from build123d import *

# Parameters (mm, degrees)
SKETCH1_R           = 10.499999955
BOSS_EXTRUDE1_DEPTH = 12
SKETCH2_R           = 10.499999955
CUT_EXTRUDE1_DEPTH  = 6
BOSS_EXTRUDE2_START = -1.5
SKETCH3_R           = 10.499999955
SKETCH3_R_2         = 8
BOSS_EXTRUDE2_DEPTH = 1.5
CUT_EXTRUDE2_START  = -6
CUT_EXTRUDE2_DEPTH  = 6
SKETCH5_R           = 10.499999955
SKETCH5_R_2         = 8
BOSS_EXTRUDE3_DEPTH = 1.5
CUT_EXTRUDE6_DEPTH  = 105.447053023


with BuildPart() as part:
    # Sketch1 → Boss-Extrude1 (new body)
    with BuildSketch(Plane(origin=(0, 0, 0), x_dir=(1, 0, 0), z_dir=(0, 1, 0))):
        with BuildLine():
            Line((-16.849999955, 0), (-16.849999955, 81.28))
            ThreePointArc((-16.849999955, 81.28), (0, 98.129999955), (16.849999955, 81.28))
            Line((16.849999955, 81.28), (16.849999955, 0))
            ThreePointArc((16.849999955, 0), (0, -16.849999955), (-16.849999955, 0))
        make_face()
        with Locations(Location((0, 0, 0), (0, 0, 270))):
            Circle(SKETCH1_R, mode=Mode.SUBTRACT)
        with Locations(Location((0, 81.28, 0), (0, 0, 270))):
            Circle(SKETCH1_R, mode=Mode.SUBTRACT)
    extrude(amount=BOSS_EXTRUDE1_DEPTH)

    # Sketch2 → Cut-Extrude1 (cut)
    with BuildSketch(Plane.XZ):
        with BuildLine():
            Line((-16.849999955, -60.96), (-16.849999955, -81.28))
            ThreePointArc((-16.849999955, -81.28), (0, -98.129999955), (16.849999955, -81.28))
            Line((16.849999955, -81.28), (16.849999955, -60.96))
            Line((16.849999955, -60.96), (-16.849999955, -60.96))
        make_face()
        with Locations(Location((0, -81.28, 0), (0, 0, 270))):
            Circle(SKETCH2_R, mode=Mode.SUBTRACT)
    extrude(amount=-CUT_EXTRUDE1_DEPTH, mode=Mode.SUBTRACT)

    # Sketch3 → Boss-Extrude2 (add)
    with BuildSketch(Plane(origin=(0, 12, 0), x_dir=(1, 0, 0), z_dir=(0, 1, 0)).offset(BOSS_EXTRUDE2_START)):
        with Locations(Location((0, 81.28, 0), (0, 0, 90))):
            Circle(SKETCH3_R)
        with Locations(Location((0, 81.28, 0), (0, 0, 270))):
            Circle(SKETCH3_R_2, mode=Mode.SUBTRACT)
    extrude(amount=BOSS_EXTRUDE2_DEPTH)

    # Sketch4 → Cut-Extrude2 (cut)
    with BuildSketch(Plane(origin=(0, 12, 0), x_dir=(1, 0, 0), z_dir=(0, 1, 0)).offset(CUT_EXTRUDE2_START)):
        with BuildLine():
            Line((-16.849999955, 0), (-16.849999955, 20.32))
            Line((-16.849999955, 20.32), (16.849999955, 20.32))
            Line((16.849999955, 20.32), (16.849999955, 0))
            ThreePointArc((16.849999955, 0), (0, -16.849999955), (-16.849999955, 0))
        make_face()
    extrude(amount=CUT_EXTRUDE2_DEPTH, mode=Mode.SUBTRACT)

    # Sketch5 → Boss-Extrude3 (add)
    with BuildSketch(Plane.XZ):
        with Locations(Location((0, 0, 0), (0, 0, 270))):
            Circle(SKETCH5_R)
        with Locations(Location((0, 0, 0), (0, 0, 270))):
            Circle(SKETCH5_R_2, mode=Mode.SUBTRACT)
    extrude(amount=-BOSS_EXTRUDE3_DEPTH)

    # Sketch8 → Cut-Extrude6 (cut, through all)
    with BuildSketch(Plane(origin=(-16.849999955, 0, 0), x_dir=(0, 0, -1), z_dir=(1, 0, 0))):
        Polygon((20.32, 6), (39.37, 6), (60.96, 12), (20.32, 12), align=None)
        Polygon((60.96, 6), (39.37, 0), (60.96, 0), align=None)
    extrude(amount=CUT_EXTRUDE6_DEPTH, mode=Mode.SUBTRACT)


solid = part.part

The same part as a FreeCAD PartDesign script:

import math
import FreeCAD as App
import Part
import Sketcher
Q = App.Units.Quantity

doc = App.newDocument("Part")
body = doc.addObject("PartDesign::Body", "Body")

sketch1 = body.newObject("Sketcher::SketchObject", "Sketch")
sketch1.AttachmentSupport = (doc.getObject("XZ_Plane"), [""])
sketch1.MapMode = "FlatFace"
sketch1.addGeometry([
    Part.LineSegment(App.Vector(-17, -81, 0), App.Vector(-17, 0, 0)),
    Part.ArcOfCircle(Part.Circle(App.Vector(0, 0, 0), App.Vector(0, 0, 1), 17), math.radians(0), math.radians(180)),
    Part.LineSegment(App.Vector(17, 0, 0), App.Vector(17, -81, 0)),
    Part.ArcOfCircle(Part.Circle(App.Vector(0, -81, 0), App.Vector(0, 0, 1), 17), math.radians(180), math.radians(360)),
    Part.Circle(App.Vector(0, 0, 0), App.Vector(0, 0, 1), 10),
    Part.Circle(App.Vector(0, -81, 0), App.Vector(0, 0, 1), 10),
], False)
sketch1.addConstraint([
    Sketcher.Constraint("Tangent", 0, 2, 1, 2),
    Sketcher.Constraint("Tangent", 1, 1, 2, 1),
    Sketcher.Constraint("Tangent", 2, 2, 3, 2),
    Sketcher.Constraint("Tangent", 3, 1, 0, 1),
    Sketcher.Constraint("Vertical", 0),
    Sketcher.Constraint("Vertical", 2),
    Sketcher.Constraint("Coincident", 1, 3, -1, 1),
    Sketcher.Constraint("Coincident", 4, 3, -1, 1),
    Sketcher.Constraint("Coincident", 5, 3, 3, 3),
    Sketcher.Constraint("Equal", 4, 5),
    Sketcher.Constraint("Diameter", 4, Q("21 mm")),
    Sketcher.Constraint("Radius", 1, Q("16.85 mm")),
    Sketcher.Constraint("DistanceY", 0, 1, 0, 2, Q("81.28 mm")),
])
pad1 = body.newObject("PartDesign::Pad", "Pad")
pad1.Profile = sketch1
pad1.Length = 12
pad1.Reversed = True

sketch2 = body.newObject("Sketcher::SketchObject", "Sketch001")
sketch2.AttachmentSupport = (doc.getObject("XZ_Plane"), [""])
sketch2.MapMode = "FlatFace"
sketch2.addGeometry([
    Part.LineSegment(App.Vector(-17, -61, 0), App.Vector(-17, -81, 0)),
    Part.ArcOfCircle(Part.Circle(App.Vector(0, -81, 0), App.Vector(0, 0, 1), 17), math.radians(180), math.radians(360)),
    Part.LineSegment(App.Vector(17, -81, 0), App.Vector(17, -61, 0)),
    Part.LineSegment(App.Vector(17, -61, 0), App.Vector(-17, -61, 0)),
    Part.Circle(App.Vector(0, -81, 0), App.Vector(0, 0, 1), 10),
], False)
sketch2.addConstraint([
    Sketcher.Constraint("Tangent", 0, 2, 1, 1),
    Sketcher.Constraint("Tangent", 1, 2, 2, 1),
    Sketcher.Constraint("Coincident", 2, 2, 3, 1),
    Sketcher.Constraint("Coincident", 3, 2, 0, 1),
    Sketcher.Constraint("Vertical", 0),
    Sketcher.Constraint("Vertical", 2),
    Sketcher.Constraint("Horizontal", 3),
    Sketcher.Constraint("Coincident", 4, 3, 1, 3),
    Sketcher.Constraint("PointOnObject", 1, 3, -2),
    Sketcher.Constraint("Diameter", 4, Q("21 mm")),
    Sketcher.Constraint("Radius", 1, Q("16.85 mm")),
    Sketcher.Constraint("DistanceY", 0, 2, 0, 1, Q("20.32 mm")),
    Sketcher.Constraint("DistanceY", 1, 3, -1, 1, Q("81.28 mm")),
])
pocket1 = body.newObject("PartDesign::Pocket", "Pocket")
pocket1.Profile = sketch2
pocket1.Length = 6

sketch3 = body.newObject("Sketcher::SketchObject", "Sketch002")
sketch3.AttachmentSupport = (doc.getObject("XZ_Plane"), [""])
sketch3.MapMode = "FlatFace"
sketch3.AttachmentOffset = App.Placement(App.Vector(0, 0, -10.5), App.Rotation())
sketch3.addGeometry([
    Part.Circle(App.Vector(0, -81, 0), App.Vector(0, 0, 1), 10),
    Part.Circle(App.Vector(0, -81, 0), App.Vector(0, 0, 1), 8),
], False)
sketch3.addConstraint([
    Sketcher.Constraint("Coincident", 1, 3, 0, 3),
    Sketcher.Constraint("PointOnObject", 0, 3, -2),
    Sketcher.Constraint("Diameter", 0, Q("21 mm")),
    Sketcher.Constraint("Diameter", 1, Q("16 mm")),
    Sketcher.Constraint("DistanceY", 0, 3, -1, 1, Q("81.28 mm")),
])
pad2 = body.newObject("PartDesign::Pad", "Pad001")
pad2.Profile = sketch3
pad2.Length = 1.5
pad2.Reversed = True

sketch4 = body.newObject("Sketcher::SketchObject", "Sketch003")
sketch4.AttachmentSupport = (doc.getObject("XZ_Plane"), [""])
sketch4.MapMode = "FlatFace"
sketch4.AttachmentOffset = App.Placement(App.Vector(0, 0, -6), App.Rotation())
sketch4.addGeometry([
    Part.LineSegment(App.Vector(-17, -20, 0), App.Vector(-17, 0, 0)),
    Part.ArcOfCircle(Part.Circle(App.Vector(0, 0, 0), App.Vector(0, 0, 1), 17), math.radians(0), math.radians(180)),
    Part.LineSegment(App.Vector(17, 0, 0), App.Vector(17, -20, 0)),
    Part.LineSegment(App.Vector(17, -20, 0), App.Vector(-17, -20, 0)),
], False)
sketch4.addConstraint([
    Sketcher.Constraint("Tangent", 0, 2, 1, 2),
    Sketcher.Constraint("Tangent", 1, 1, 2, 1),
    Sketcher.Constraint("Coincident", 2, 2, 3, 1),
    Sketcher.Constraint("Coincident", 3, 2, 0, 1),
    Sketcher.Constraint("Vertical", 0),
    Sketcher.Constraint("Vertical", 2),
    Sketcher.Constraint("Horizontal", 3),
    Sketcher.Constraint("Coincident", 1, 3, -1, 1),
    Sketcher.Constraint("Radius", 1, Q("16.85 mm")),
    Sketcher.Constraint("DistanceY", 0, 1, 0, 2, Q("20.32 mm")),
])
pocket2 = body.newObject("PartDesign::Pocket", "Pocket001")
pocket2.Profile = sketch4
pocket2.Length = 6

sketch5 = body.newObject("Sketcher::SketchObject", "Sketch004")
sketch5.AttachmentSupport = (doc.getObject("XZ_Plane"), [""])
sketch5.MapMode = "FlatFace"
sketch5.addGeometry([
    Part.Circle(App.Vector(0, 0, 0), App.Vector(0, 0, 1), 10),
    Part.Circle(App.Vector(0, 0, 0), App.Vector(0, 0, 1), 8),
], False)
sketch5.addConstraint([
    Sketcher.Constraint("Coincident", 0, 3, -1, 1),
    Sketcher.Constraint("Coincident", 1, 3, -1, 1),
    Sketcher.Constraint("Diameter", 0, Q("21 mm")),
    Sketcher.Constraint("Diameter", 1, Q("16 mm")),
])
pad3 = body.newObject("PartDesign::Pad", "Pad002")
pad3.Profile = sketch5
pad3.Length = 1.5
pad3.Reversed = True

sketch6 = body.newObject("Sketcher::SketchObject", "Sketch005")
sketch6.AttachmentSupport = (doc.getObject("YZ_Plane"), [""])
sketch6.MapMode = "FlatFace"
sketch6.AttachmentOffset = App.Placement(App.Vector(0, 0, -16.85), App.Rotation())
sketch6.addGeometry([
    Part.LineSegment(App.Vector(6, -20, 0), App.Vector(6, -39, 0)),
    Part.LineSegment(App.Vector(6, -39, 0), App.Vector(12, -61, 0)),
    Part.LineSegment(App.Vector(12, -61, 0), App.Vector(12, -20, 0)),
    Part.LineSegment(App.Vector(12, -20, 0), App.Vector(6, -20, 0)),
    Part.LineSegment(App.Vector(6, -61, 0), App.Vector(0, -39, 0)),
    Part.LineSegment(App.Vector(0, -39, 0), App.Vector(0, -61, 0)),
    Part.LineSegment(App.Vector(0, -61, 0), App.Vector(6, -61, 0)),
], False)
sketch6.addConstraint([
    Sketcher.Constraint("Coincident", 0, 2, 1, 1),
    Sketcher.Constraint("Coincident", 1, 2, 2, 1),
    Sketcher.Constraint("Coincident", 2, 2, 3, 1),
    Sketcher.Constraint("Coincident", 3, 2, 0, 1),
    Sketcher.Constraint("Coincident", 4, 2, 5, 1),
    Sketcher.Constraint("Coincident", 5, 2, 6, 1),
    Sketcher.Constraint("Coincident", 6, 2, 4, 1),
    Sketcher.Constraint("Vertical", 0),
    Sketcher.Constraint("Vertical", 2),
    Sketcher.Constraint("Horizontal", 3),
    Sketcher.Constraint("Vertical", 5),
    Sketcher.Constraint("Horizontal", 6),
    Sketcher.Constraint("PointOnObject", 4, 2, -2),
    Sketcher.Constraint("Parallel", 1, 4),
    Sketcher.Constraint("Horizontal", 0, 2, 4, 2),
    Sketcher.Constraint("Horizontal", 1, 2, 5, 2),
    Sketcher.Constraint("Vertical", 3, 2, 6, 2),
    Sketcher.Constraint("DistanceX", 3, 2, 3, 1, Q("6 mm")),
    Sketcher.Constraint("DistanceY", 0, 2, 0, 1, Q("19.05 mm")),
    Sketcher.Constraint("DistanceY", 2, 1, 2, 2, Q("40.64 mm")),
    Sketcher.Constraint("DistanceY", 0, 2, -1, 1, Q("39.37 mm")),
])
pocket3 = body.newObject("PartDesign::Pocket", "Pocket002")
pocket3.Profile = sketch6
pocket3.Type = "ThroughAll"
pocket3.Reversed = True

doc.recompute()
